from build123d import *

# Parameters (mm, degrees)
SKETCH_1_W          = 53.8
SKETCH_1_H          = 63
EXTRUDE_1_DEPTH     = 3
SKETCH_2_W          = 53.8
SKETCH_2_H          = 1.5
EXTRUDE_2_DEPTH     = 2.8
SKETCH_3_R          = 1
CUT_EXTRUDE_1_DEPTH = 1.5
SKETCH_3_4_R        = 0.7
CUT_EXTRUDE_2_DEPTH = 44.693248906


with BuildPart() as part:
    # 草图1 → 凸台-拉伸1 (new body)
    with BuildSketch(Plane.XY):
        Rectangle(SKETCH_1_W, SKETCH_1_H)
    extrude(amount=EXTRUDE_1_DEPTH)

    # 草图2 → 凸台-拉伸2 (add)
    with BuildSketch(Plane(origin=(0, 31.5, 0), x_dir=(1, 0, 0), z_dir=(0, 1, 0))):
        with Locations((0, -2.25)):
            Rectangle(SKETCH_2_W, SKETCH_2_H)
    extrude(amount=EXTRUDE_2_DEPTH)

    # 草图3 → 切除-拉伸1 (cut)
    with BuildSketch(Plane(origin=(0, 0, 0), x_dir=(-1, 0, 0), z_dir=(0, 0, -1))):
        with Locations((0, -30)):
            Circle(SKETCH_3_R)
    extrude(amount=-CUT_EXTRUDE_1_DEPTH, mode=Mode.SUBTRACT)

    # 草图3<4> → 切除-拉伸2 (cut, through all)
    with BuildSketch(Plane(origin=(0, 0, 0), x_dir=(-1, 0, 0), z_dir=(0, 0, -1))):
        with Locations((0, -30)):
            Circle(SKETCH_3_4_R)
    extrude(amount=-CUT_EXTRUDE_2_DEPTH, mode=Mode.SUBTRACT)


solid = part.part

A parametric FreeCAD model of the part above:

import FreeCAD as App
import Part
import Sketcher

V = App.Vector
Q = App.Units.Quantity

doc = App.newDocument("Part")
body = doc.addObject("PartDesign::Body", "Body")

# Sketch on XY plane
sketch1 = doc.addObject("Sketcher::SketchObject", "Sketch")
body.addObject(sketch1)
sketch1.AttachmentSupport = (doc.XY_Plane, [""])
sketch1.MapMode = "FlatFace"
sketch1.addGeometry([
    Part.LineSegment(V(-27, 32, 0), V(-27, -32, 0)),
    Part.LineSegment(V(-27, -32, 0), V(27, -32, 0)),
    Part.LineSegment(V(27, -32, 0), V(27, 32, 0)),
    Part.LineSegment(V(27, 32, 0), V(-27, 32, 0)),
], False)
sketch1.addConstraint([
    Sketcher.Constraint("Coincident", 0, 2, 1, 1),
    Sketcher.Constraint("Coincident", 1, 2, 2, 1),
    Sketcher.Constraint("Coincident", 2, 2, 3, 1),
    Sketcher.Constraint("Coincident", 3, 2, 0, 1),
    Sketcher.Constraint("Vertical", 0),
    Sketcher.Constraint("Horizontal", 1),
    Sketcher.Constraint("Vertical", 2),
    Sketcher.Constraint("Horizontal", 3),
    Sketcher.Constraint("Symmetric", 0, 2, 2, 2, -1, 1),
    Sketcher.Constraint("DistanceY", 0, 2, 0, 1, Q("63 mm")),
    Sketcher.Constraint("DistanceX", 1, 1, 1, 2, Q("53.8 mm")),
])
pad1 = doc.addObject("PartDesign::Pad", "Pad")
body.addObject(pad1)
pad1.Profile = sketch1
pad1.Length = 3

# Sketch on XZ plane
sketch2 = doc.addObject("Sketcher::SketchObject", "Sketch001")
body.addObject(sketch2)
sketch2.AttachmentSupport = (doc.XZ_Plane, [""])
sketch2.MapMode = "FlatFace"
sketch2.AttachmentOffset = App.Placement(V(0, 0, -31.5), App.Rotation())
sketch2.addGeometry([
    Part.LineSegment(V(-26.9, 1.5, 0), V(-26.9, 3, 0)),
    Part.LineSegment(V(-26.9, 3, 0), V(26.9, 3, 0)),
    Part.LineSegment(V(26.9, 3, 0), V(26.9, 1.5, 0)),
    Part.LineSegment(V(26.9, 1.5, 0), V(-26.9, 1.5, 0)),
], False)
sketch2.addConstraint([
    Sketcher.Constraint("Coincident", 0, 2, 1, 1),
    Sketcher.Constraint("Coincident", 1, 2, 2, 1),
    Sketcher.Constraint("Coincident", 2, 2, 3, 1),
    Sketcher.Constraint("Coincident", 3, 2, 0, 1),
    Sketcher.Constraint("Vertical", 0),
    Sketcher.Constraint("Horizontal", 1),
    Sketcher.Constraint("Vertical", 2),
    Sketcher.Constraint("Horizontal", 3),
    Sketcher.Constraint("DistanceX", 1, 1, 1, 2, Q("53.8 mm")),
    Sketcher.Constraint("DistanceY", 0, 1, 0, 2, Q("1.5 mm")),
    Sketcher.Constraint("DistanceY", -1, 1, 0, 2, Q("3 mm")),
    Sketcher.Constraint("DistanceX", 0, 2, -1, 1, Q("26.9 mm")),
])
pad2 = doc.addObject("PartDesign::Pad", "Pad001")
body.addObject(pad2)
pad2.Profile = sketch2
pad2.Length = 2.8
pad2.Reversed = True

# Sketch on XY plane
sketch3 = doc.addObject("Sketcher::SketchObject", "Sketch002")
body.addObject(sketch3)
sketch3.AttachmentSupport = (doc.XY_Plane, [""])
sketch3.MapMode = "FlatFace"
sketch3.addGeometry(Part.Circle(V(0, -30, 0), V(0, 0, 1), 1), False)
sketch3.addConstraint([
    Sketcher.Constraint("PointOnObject", 0, 3, -2),
    Sketcher.Constraint("Diameter", 0, Q("2 mm")),
    Sketcher.Constraint("DistanceY", 0, 3, -1, 1, Q("30 mm")),
])
pocket1 = doc.addObject("PartDesign::Pocket", "Pocket")
body.addObject(pocket1)
pocket1.Profile = sketch3
pocket1.Length = 1.5
pocket1.Reversed = True

# Sketch on XY plane
sketch4 = doc.addObject("Sketcher::SketchObject", "Sketch003")
body.addObject(sketch4)
sketch4.AttachmentSupport = (doc.XY_Plane, [""])
sketch4.MapMode = "FlatFace"
sketch4.addGeometry(Part.Circle(V(0, -30, 0), V(0, 0, 1), 0.7), False)
sketch4.addConstraint([
    Sketcher.Constraint("PointOnObject", 0, 3, -2),
    Sketcher.Constraint("Diameter", 0, Q("1.4 mm")),
    Sketcher.Constraint("DistanceY", 0, 3, -1, 1, Q("30 mm")),
])
pocket2 = doc.addObject("PartDesign::Pocket", "Pocket001")
body.addObject(pocket2)
pocket2.Profile = sketch4
pocket2.Type = "ThroughAll"
pocket2.Reversed = True

doc.recompute()
